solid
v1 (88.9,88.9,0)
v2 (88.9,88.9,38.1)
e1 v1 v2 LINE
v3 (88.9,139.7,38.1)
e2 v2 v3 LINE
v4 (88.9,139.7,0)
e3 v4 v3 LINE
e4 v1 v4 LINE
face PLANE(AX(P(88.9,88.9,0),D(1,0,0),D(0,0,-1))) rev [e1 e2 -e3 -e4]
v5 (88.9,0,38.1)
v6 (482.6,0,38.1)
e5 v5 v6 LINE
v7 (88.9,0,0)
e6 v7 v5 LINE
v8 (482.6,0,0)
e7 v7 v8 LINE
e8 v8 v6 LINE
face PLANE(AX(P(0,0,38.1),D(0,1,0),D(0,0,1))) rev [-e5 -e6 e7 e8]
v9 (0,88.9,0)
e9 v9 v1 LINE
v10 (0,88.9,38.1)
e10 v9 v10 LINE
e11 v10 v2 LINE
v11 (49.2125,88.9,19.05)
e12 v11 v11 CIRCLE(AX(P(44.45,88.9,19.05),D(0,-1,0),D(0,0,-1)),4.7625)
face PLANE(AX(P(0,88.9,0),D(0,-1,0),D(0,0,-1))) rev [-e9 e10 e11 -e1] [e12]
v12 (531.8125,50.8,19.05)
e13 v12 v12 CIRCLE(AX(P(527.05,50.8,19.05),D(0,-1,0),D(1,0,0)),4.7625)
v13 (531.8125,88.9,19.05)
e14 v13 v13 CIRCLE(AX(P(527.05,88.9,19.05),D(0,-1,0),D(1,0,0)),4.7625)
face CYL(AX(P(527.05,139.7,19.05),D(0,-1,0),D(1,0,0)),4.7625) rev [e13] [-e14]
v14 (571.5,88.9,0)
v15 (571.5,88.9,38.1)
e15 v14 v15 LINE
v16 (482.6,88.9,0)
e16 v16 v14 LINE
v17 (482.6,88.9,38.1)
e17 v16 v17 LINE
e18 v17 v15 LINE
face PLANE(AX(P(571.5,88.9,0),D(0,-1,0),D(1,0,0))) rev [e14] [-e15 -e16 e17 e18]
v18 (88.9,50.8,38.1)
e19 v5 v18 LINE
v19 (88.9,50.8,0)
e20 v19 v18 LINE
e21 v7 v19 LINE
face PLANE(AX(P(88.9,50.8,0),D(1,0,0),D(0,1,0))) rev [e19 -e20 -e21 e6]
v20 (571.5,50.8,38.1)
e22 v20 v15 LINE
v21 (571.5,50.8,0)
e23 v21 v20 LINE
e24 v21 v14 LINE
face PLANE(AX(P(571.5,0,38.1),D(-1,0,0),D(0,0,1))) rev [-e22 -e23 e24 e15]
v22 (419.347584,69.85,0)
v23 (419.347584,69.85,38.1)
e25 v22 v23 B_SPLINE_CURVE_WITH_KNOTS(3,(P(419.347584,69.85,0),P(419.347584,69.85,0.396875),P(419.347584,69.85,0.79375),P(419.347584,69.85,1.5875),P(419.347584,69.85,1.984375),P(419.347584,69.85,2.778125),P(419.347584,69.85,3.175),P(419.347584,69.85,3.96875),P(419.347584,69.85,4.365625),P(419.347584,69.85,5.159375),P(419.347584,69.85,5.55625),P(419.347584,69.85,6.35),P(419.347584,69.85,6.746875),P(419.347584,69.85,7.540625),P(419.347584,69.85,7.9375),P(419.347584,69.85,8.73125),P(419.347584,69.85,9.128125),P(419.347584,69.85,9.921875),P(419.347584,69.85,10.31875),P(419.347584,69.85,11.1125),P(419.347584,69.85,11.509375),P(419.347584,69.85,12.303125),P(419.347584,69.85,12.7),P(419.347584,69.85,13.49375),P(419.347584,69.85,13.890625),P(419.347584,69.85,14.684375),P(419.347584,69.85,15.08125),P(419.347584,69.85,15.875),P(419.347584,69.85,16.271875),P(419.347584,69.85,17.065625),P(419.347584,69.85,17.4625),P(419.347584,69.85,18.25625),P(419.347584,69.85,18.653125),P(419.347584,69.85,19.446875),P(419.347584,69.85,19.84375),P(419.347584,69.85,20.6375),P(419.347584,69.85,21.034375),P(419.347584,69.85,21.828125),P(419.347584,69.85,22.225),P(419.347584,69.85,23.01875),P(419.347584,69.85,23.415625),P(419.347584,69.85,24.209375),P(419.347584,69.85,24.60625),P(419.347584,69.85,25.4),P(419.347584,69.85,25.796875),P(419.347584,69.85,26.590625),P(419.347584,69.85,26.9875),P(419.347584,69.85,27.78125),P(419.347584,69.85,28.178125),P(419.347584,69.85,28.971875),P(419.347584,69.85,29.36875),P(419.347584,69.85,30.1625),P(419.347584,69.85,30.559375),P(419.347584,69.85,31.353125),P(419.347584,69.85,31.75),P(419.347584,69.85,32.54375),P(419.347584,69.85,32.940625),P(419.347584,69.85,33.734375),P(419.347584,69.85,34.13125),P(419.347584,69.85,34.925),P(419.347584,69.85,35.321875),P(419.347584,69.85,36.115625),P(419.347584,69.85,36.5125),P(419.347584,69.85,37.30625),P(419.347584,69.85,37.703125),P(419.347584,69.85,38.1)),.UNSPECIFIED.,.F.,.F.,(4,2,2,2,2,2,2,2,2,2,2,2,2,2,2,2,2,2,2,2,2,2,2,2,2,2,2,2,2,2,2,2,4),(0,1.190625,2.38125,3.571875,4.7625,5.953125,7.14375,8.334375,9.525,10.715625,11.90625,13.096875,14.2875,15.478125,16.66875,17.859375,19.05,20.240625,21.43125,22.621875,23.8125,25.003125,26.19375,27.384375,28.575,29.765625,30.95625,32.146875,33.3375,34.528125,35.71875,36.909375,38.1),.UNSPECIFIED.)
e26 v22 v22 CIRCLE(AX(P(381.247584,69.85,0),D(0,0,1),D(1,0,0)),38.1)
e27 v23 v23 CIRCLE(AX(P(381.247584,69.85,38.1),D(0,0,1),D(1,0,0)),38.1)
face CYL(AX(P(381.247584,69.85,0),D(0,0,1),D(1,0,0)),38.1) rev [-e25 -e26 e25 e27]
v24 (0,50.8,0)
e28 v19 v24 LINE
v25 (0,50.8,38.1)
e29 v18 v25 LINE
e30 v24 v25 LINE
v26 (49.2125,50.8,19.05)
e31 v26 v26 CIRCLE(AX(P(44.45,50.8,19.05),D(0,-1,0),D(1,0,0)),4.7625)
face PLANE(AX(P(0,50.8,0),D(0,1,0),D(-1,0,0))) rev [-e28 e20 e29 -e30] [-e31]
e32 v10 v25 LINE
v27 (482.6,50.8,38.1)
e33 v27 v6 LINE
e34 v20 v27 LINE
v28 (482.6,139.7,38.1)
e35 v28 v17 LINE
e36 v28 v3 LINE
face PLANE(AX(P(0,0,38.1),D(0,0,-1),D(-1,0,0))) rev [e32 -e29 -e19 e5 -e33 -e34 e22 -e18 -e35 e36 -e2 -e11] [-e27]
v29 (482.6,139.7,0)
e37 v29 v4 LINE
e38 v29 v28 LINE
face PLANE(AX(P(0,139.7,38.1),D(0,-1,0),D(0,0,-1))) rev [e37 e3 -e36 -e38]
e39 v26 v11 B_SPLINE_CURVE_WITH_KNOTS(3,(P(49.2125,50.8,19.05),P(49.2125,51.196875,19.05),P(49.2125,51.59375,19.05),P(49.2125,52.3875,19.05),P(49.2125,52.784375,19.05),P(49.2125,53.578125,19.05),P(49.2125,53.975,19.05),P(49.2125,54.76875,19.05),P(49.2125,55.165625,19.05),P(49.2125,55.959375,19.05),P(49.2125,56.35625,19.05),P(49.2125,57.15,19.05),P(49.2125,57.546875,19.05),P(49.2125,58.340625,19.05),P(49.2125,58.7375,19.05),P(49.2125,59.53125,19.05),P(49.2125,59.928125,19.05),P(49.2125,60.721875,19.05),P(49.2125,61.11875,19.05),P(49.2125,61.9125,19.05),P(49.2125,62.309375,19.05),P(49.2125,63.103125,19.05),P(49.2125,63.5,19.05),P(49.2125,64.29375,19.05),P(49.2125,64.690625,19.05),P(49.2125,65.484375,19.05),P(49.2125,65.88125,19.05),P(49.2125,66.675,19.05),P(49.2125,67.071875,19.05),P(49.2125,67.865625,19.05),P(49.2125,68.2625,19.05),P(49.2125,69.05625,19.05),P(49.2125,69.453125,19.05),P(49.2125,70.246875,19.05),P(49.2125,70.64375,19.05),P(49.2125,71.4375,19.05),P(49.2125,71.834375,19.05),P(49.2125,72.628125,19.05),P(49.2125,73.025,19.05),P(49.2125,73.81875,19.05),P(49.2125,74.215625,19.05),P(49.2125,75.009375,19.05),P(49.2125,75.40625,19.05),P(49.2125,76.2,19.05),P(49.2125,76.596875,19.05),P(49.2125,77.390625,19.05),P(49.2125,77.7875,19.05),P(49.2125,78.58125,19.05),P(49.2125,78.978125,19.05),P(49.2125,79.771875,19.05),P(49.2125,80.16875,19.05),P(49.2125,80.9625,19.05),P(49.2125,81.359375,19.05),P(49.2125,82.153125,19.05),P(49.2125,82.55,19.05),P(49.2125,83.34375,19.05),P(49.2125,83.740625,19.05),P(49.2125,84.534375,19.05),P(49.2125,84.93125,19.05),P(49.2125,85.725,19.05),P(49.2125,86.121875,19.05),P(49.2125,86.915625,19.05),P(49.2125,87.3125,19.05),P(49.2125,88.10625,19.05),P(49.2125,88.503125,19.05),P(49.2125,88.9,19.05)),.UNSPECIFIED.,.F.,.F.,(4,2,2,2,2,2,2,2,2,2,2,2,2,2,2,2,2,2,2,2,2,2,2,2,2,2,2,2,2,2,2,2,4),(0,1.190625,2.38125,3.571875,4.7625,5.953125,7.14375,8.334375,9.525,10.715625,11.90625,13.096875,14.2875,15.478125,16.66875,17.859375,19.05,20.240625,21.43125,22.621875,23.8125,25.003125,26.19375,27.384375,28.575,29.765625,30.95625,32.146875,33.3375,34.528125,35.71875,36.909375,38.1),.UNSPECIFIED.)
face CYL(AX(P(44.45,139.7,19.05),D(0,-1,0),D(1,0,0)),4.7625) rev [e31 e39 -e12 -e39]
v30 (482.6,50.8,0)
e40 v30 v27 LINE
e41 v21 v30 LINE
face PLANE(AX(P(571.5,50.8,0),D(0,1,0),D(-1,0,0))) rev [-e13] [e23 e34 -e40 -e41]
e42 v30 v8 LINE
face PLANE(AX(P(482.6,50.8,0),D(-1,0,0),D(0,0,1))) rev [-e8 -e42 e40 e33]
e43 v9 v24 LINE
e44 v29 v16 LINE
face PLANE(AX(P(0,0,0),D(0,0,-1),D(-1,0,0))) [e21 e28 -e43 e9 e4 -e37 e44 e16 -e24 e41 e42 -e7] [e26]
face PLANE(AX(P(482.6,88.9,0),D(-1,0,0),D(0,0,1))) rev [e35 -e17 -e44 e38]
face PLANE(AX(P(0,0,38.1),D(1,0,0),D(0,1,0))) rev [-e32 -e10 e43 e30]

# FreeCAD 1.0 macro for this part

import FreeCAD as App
import Part
import Sketcher

V = App.Vector
Q = App.Units.Quantity

doc = App.newDocument("Part")
params = doc.addObject("Spreadsheet::Sheet", "Params")
for row, (alias, value) in enumerate([
    ("sketch1_width", "22.5 in"),
    ("sketch1_height", "5.5 in"),
    ("pad1_length", "1.5 in"),
    ("sketch2_height", "2 in"),
    ("sketch2_width", "3.5 in"),
    ("sketch3_diameter", "3 in"),
    ("sketch4_diameter", "0.375 in"),
    ("sketch5_diameter", "0.375 in"),
], start=1):
    params.set(f"A{row}", alias)
    params.set(f"B{row}", "=" + value)
    params.setAlias(f"B{row}", alias)

body = doc.addObject("PartDesign::Body", "Body")

sketch1 = body.newObject("Sketcher::SketchObject", "Sketch")
sketch1.AttachmentSupport = (doc.getObject("XY_Plane"), [""])
sketch1.MapMode = "FlatFace"
sketch1.addGeometry([
    Part.LineSegment(V(0, 140, 0), V(0, 0, 0)),
    Part.LineSegment(V(0, 0, 0), V(572, 0, 0)),
    Part.LineSegment(V(572, 0, 0), V(572, 140, 0)),
    Part.LineSegment(V(572, 140, 0), V(0, 140, 0)),
], False)
sketch1.addConstraint([
    Sketcher.Constraint("Coincident", 0, 2, 1, 1),
    Sketcher.Constraint("Coincident", 1, 2, 2, 1),
    Sketcher.Constraint("Coincident", 2, 2, 3, 1),
    Sketcher.Constraint("Coincident", 3, 2, 0, 1),
    Sketcher.Constraint("Vertical", 0),
    Sketcher.Constraint("Horizontal", 1),
    Sketcher.Constraint("Vertical", 2),
    Sketcher.Constraint("Horizontal", 3),
    Sketcher.Constraint("Coincident", 0, 2, -1, 1),
    Sketcher.Constraint("DistanceX", 1, 1, 1, 2, Q("22.5 in")),
    Sketcher.Constraint("DistanceY", 0, 2, 0, 1, Q("5.5 in")),
])
sketch1.setExpression("Constraints[9]", "Params.sketch1_width")
sketch1.setExpression("Constraints[10]", "Params.sketch1_height")
pad1 = body.newObject("PartDesign::Pad", "Pad")
pad1.Profile = sketch1
pad1.setExpression("Length", "Params.pad1_length")

sketch2 = body.newObject("Sketcher::SketchObject", "Sketch001")
sketch2.AttachmentSupport = (doc.getObject("XY_Plane"), [""])
sketch2.MapMode = "FlatFace"
sketch2.AttachmentOffset = App.Placement(V(0, 0, 1.5 * 25.4), App.Rotation())
sketch2.addGeometry([
    Part.LineSegment(V(0, 140, 0), V(0, 89, 0)),
    Part.LineSegment(V(0, 89, 0), V(89, 89, 0)),
    Part.LineSegment(V(89, 89, 0), V(89, 140, 0)),
    Part.LineSegment(V(89, 140, 0), V(0, 140, 0)),
    Part.LineSegment(V(483, 140, 0), V(483, 89, 0)),
    Part.LineSegment(V(483, 89, 0), V(572, 89, 0)),
    Part.LineSegment(V(572, 89, 0), V(572, 140, 0)),
    Part.LineSegment(V(572, 140, 0), V(483, 140, 0)),
    Part.LineSegment(V(483, 51, 0), V(483, 0, 0)),
    Part.LineSegment(V(483, 0, 0), V(572, 0, 0)),
    Part.LineSegment(V(572, 0, 0), V(572, 51, 0)),
    Part.LineSegment(V(572, 51, 0), V(483, 51, 0)),
    Part.LineSegment(V(0, 51, 0), V(0, 0, 0)),
    Part.LineSegment(V(0, 0, 0), V(89, 0, 0)),
    Part.LineSegment(V(89, 0, 0), V(89, 51, 0)),
    Part.LineSegment(V(89, 51, 0), V(0, 51, 0)),
], False)
sketch2.addConstraint([
    Sketcher.Constraint("Coincident", 0, 2, 1, 1),
    Sketcher.Constraint("Coincident", 1, 2, 2, 1),
    Sketcher.Constraint("Coincident", 2, 2, 3, 1),
    Sketcher.Constraint("Coincident", 3, 2, 0, 1),
    Sketcher.Constraint("Coincident", 4, 2, 5, 1),
    Sketcher.Constraint("Coincident", 5, 2, 6, 1),
    Sketcher.Constraint("Coincident", 6, 2, 7, 1),
    Sketcher.Constraint("Coincident", 7, 2, 4, 1),
    Sketcher.Constraint("Coincident", 8, 2, 9, 1),
    Sketcher.Constraint("Coincident", 9, 2, 10, 1),
    Sketcher.Constraint("Coincident", 10, 2, 11, 1),
    Sketcher.Constraint("Coincident", 11, 2, 8, 1),
    Sketcher.Constraint("Coincident", 12, 2, 13, 1),
    Sketcher.Constraint("Coincident", 13, 2, 14, 1),
    Sketcher.Constraint("Coincident", 14, 2, 15, 1),
    Sketcher.Constraint("Coincident", 15, 2, 12, 1),
    Sketcher.Constraint("Vertical", 0),
    Sketcher.Constraint("Horizontal", 1),
    Sketcher.Constraint("Vertical", 2),
    Sketcher.Constraint("Horizontal", 3),
    Sketcher.Constraint("Vertical", 4),
    Sketcher.Constraint("Horizontal", 5),
    Sketcher.Constraint("Vertical", 6),
    Sketcher.Constraint("Horizontal", 7),
    Sketcher.Constraint("Vertical", 8),
    Sketcher.Constraint("Horizontal", 9),
    Sketcher.Constraint("Vertical", 10),
    Sketcher.Constraint("Horizontal", 11),
    Sketcher.Constraint("Vertical", 12),
    Sketcher.Constraint("Horizontal", 13),
    Sketcher.Constraint("Vertical", 14),
    Sketcher.Constraint("Horizontal", 15),
    Sketcher.Constraint("Coincident", 12, 2, -1, 1),
    Sketcher.Constraint("PointOnObject", 0, 2, -2),
    Sketcher.Constraint("PointOnObject", 8, 2, -1),
    Sketcher.Constraint("Horizontal", 1, 2, 4, 2),
    Sketcher.Constraint("Horizontal", 3, 2, 6, 2),
    Sketcher.Constraint("Horizontal", 11, 2, 14, 2),
    Sketcher.Constraint("Vertical", 7, 2, 8, 2),
    Sketcher.Constraint("Vertical", 6, 2, 9, 2),
    Sketcher.Constraint("Vertical", 2, 2, 13, 2),
    Sketcher.Constraint("Equal", 3, 5),
    Sketcher.Constraint("Equal", 6, 8),
    Sketcher.Constraint("DistanceY", 0, 2, 0, 1, Q("2 in")),
    Sketcher.Constraint("DistanceX", 1, 1, 1, 2, Q("3.5 in")),
    Sketcher.Constraint("DistanceX", -1, 1, 4, 2, Q("19 in")),
    Sketcher.Constraint("DistanceY", -1, 1, 0, 2, Q("3.5 in")),
])
sketch2.setExpression("Constraints[43]", "Params.sketch2_height")
sketch2.setExpression("Constraints[44]", "Params.sketch2_width")
pocket1 = body.newObject("PartDesign::Pocket", "Pocket")
pocket1.Profile = sketch2
pocket1.Type = "ThroughAll"

sketch3 = body.newObject("Sketcher::SketchObject", "Sketch002")
sketch3.AttachmentSupport = (doc.getObject("XY_Plane"), [""])
sketch3.MapMode = "FlatFace"
sketch3.AttachmentOffset = App.Placement(V(0, 0, 1.5 * 25.4), App.Rotation())
sketch3.addGeometry(Part.Circle(V(381, 70, 0), V(0, 0, 1), 38), False)
sketch3.addConstraint([
    Sketcher.Constraint("Diameter", 0, Q("3 in")),
    Sketcher.Constraint("DistanceY", -1, 1, 0, 3, Q("2.75 in")),
    Sketcher.Constraint("DistanceX", -1, 1, 0, 3, 381.247584),
])
sketch3.setExpression("Constraints[0]", "Params.sketch3_diameter")
pocket2 = body.newObject("PartDesign::Pocket", "Pocket001")
pocket2.Profile = sketch3
pocket2.Type = "ThroughAll"

sketch4 = body.newObject("Sketcher::SketchObject", "Sketch003")
sketch4.AttachmentSupport = (doc.getObject("XZ_Plane"), [""])
sketch4.MapMode = "FlatFace"
sketch4.AttachmentOffset = App.Placement(V(0, 0, -2 * 25.4), App.Rotation())
sketch4.addGeometry(Part.Circle(V(44.5, 19.1, 0), V(0, 0, 1), 4.8), False)
sketch4.addConstraint([
    Sketcher.Constraint("Diameter", 0, Q("0.375 in")),
    Sketcher.Constraint("DistanceX", -1, 1, 0, 3, Q("1.75 in")),
    Sketcher.Constraint("DistanceY", -1, 1, 0, 3, Q("0.75 in")),
])
sketch4.setExpression("Constraints[0]", "Params.sketch4_diameter")
pocket3 = body.newObject("PartDesign::Pocket", "Pocket002")
pocket3.Profile = sketch4
pocket3.Type = "ThroughAll"

sketch5 = body.newObject("Sketcher::SketchObject", "Sketch004")
sketch5.AttachmentSupport = (doc.getObject("XZ_Plane"), [""])
sketch5.MapMode = "FlatFace"
sketch5.AttachmentOffset = App.Placement(V(0, 0, -2 * 25.4), App.Rotation())
sketch5.addGeometry(Part.Circle(V(527, 19.1, 0), V(0, 0, 1), 4.8), False)
sketch5.addConstraint([
    Sketcher.Constraint("Diameter", 0, Q("0.375 in")),
    Sketcher.Constraint("DistanceX", -1, 1, 0, 3, Q("20.75 in")),
    Sketcher.Constraint("DistanceY", -1, 1, 0, 3, Q("0.75 in")),
])
sketch5.setExpression("Constraints[0]", "Params.sketch5_diameter")
pocket4 = body.newObject("PartDesign::Pocket", "Pocket003")
pocket4.Profile = sketch5
pocket4.Type = "ThroughAll"

doc.recompute()
